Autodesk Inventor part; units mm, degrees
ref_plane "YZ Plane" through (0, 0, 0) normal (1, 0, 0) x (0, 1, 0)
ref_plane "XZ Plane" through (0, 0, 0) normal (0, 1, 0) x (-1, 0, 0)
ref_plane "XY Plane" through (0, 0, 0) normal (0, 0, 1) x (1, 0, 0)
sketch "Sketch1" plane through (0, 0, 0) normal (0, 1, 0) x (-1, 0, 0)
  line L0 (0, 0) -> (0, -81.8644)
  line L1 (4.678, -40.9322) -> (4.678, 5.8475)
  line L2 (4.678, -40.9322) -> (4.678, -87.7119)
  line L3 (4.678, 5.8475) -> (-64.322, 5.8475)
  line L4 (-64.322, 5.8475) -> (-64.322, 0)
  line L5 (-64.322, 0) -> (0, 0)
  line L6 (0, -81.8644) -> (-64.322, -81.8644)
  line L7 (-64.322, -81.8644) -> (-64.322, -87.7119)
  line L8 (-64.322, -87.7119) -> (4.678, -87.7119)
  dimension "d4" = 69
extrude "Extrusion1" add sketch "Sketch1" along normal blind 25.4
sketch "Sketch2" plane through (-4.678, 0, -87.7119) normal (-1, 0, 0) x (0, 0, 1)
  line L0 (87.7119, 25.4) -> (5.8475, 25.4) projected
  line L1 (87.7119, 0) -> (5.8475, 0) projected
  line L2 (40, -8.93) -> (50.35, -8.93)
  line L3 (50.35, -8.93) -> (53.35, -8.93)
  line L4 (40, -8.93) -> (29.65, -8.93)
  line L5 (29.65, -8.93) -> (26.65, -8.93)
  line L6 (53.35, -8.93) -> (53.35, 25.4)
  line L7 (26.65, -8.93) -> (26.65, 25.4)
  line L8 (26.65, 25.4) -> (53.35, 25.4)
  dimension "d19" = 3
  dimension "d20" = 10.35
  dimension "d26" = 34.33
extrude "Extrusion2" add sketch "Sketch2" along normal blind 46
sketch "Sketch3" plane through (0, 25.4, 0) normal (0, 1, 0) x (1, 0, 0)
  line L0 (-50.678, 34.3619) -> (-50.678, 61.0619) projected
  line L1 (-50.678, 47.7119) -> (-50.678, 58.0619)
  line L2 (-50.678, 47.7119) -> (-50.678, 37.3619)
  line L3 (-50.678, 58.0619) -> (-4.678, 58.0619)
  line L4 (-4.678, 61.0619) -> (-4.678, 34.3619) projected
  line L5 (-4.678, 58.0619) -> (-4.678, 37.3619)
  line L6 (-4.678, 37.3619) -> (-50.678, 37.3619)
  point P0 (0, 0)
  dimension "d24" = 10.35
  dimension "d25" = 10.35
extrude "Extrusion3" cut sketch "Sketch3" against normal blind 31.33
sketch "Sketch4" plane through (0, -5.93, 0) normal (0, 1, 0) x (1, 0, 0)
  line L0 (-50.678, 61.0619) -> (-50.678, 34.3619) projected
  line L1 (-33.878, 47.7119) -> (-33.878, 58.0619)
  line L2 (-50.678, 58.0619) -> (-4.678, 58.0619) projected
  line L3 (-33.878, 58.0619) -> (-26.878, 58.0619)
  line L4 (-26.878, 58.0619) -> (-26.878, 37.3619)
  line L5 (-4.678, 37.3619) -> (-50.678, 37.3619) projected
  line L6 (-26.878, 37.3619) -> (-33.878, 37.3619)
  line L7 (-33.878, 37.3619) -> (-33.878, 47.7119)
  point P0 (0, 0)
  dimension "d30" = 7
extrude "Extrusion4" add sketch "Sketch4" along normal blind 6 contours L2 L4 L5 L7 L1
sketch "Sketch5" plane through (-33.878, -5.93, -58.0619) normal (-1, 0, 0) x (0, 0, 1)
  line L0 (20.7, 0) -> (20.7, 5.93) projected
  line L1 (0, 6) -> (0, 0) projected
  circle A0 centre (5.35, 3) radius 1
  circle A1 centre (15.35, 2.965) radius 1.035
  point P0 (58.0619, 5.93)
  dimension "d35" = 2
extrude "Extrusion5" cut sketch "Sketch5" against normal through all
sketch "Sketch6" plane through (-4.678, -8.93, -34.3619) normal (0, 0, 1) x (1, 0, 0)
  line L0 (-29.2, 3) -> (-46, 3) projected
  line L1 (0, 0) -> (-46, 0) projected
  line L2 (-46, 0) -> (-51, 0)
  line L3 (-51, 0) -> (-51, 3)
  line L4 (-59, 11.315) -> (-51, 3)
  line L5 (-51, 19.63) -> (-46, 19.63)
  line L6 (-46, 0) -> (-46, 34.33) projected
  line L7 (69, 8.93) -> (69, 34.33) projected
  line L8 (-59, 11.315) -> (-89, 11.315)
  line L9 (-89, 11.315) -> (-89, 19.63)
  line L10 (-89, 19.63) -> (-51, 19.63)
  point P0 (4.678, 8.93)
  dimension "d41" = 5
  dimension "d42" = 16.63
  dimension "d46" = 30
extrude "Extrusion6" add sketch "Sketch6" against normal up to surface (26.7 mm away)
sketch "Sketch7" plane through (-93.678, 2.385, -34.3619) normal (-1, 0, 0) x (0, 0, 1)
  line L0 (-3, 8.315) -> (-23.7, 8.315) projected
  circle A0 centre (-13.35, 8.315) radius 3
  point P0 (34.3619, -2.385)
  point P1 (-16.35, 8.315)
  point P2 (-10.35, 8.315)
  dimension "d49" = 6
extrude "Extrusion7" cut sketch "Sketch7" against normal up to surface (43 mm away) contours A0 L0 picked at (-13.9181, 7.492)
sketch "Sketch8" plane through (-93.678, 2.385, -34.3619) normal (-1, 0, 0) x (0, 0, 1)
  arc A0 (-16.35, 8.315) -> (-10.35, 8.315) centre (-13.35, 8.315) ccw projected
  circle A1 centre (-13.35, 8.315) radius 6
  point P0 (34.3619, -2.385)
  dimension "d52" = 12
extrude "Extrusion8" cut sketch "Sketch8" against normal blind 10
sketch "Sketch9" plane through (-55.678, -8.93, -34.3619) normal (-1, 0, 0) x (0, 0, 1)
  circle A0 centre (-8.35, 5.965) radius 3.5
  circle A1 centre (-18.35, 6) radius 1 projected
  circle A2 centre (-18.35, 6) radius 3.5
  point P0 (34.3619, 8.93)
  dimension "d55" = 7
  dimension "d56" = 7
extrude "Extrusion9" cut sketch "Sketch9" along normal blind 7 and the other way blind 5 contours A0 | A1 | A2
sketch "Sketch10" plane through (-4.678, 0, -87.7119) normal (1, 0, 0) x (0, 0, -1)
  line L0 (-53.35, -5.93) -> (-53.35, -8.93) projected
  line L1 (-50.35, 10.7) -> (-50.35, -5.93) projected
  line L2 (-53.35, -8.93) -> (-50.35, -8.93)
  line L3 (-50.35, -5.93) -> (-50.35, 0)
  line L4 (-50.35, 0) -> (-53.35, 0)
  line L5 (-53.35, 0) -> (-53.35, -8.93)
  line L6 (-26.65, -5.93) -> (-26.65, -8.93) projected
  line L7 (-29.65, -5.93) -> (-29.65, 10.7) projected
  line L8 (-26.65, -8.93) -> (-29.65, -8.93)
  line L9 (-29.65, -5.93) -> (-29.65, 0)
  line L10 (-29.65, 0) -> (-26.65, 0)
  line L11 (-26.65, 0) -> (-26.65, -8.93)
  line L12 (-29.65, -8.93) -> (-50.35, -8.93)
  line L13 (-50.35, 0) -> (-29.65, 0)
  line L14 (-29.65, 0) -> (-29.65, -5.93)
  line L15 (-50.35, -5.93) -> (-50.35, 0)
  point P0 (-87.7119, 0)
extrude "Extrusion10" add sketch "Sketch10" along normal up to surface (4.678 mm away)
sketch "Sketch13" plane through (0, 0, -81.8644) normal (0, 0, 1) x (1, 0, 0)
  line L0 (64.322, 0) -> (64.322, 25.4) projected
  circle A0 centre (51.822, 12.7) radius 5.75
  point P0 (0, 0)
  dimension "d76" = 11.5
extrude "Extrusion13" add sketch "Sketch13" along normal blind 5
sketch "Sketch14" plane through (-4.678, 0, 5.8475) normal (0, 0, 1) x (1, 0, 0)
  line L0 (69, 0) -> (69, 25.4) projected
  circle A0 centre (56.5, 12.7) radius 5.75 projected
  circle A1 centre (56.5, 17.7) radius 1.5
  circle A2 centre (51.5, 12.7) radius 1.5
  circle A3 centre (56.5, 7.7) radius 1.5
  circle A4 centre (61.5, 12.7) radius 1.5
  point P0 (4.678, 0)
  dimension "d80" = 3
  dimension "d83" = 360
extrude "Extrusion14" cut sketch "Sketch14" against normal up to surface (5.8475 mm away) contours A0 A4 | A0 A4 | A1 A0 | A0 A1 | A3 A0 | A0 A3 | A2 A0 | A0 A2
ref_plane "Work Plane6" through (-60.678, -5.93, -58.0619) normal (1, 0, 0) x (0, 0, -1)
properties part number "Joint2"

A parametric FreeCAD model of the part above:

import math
import FreeCAD as App
import Part
import Sketcher
Q = App.Units.Quantity


def add_polygon(sketch, points):
    """Adds a closed chain of lines whose ends are joined by coincident constraints."""
    first, n = sketch.GeometryCount, len(points)
    for a, b in zip(points, points[1:] + points[:1]):
        sketch.addGeometry(Part.LineSegment(App.Vector(*a, 0), App.Vector(*b, 0)), False)
    for i in range(n):
        sketch.addConstraint(Sketcher.Constraint("Coincident", first + i, 2, first + (i + 1) % n, 1))

doc = App.newDocument("Part")
params = doc.addObject("Spreadsheet::Sheet", "Params")
for row, (alias, value) in enumerate([
    ("sketch1_width", "69 mm"),
    ("pad1_length", "25.4 mm"),
    ("sketch2_width", "34.33 mm"),
    ("sketch2_height", "26.7 mm"),
    ("pad2_length", "46 mm"),
    ("sketch3_width", "46 mm"),
    ("sketch3_height", "20.7 mm"),
    ("pocket1_length", "31.33 mm"),
    ("sketch4_width", "7 mm"),
    ("sketch4_height", "20.7 mm"),
    ("pad3_length", "6 mm"),
    ("sketch5_diameter", "2 mm"),
    ("sketch5_diameter2", "2.07 mm"),
    ("sketch6_width", "5 mm"),
    ("sketch6_width2", "30 mm"),
    ("sketch6_width3", "43 mm"),
    ("sketch6_height", "3 mm"),
    ("pad4_length", "26.7 mm"),
    ("sketch7_radius", "3 mm"),
    ("pocket3_length", "43 mm"),
    ("sketch8_diameter", "12 mm"),
    ("pocket4_length", "10 mm"),
    ("sketch9_diameter", "7 mm"),
    ("pocket5_length", "7 mm"),
    ("pocket5_length2", "5 mm"),
    ("sketch10_height", "26.7 mm"),
    ("sketch10_width", "8.93 mm"),
    ("pad5_length", "4.678 mm"),
    ("sketch11_diameter", "11.5 mm"),
    ("pad6_length", "5 mm"),
    ("sketch12_diameter", "3 mm"),
    ("pocket6_length", "5.8475 mm"),
], start=1):
    params.set(f"A{row}", alias)
    params.set(f"B{row}", "=" + value)
    params.setAlias(f"B{row}", alias)

body = doc.addObject("PartDesign::Body", "Body")

# Sketch on XZ plane
sketch1 = body.newObject("Sketcher::SketchObject", "Sketch")
sketch1.AttachmentSupport = (doc.getObject("XZ_Plane"), [""])
sketch1.MapMode = "FlatFace"
add_polygon(sketch1, [(64.322, 0), (0, 0), (0, -81.8644), (64.322, -81.8644), (64.322, -87.7119), (-4.678, -87.7119), (-4.678, 5.8475), (64.322, 5.8475)])  # lines 0-7
sketch1.addConstraint(Sketcher.Constraint("Horizontal", 0))
sketch1.addConstraint(Sketcher.Constraint("Vertical", 1))
sketch1.addConstraint(Sketcher.Constraint("Horizontal", 2))
sketch1.addConstraint(Sketcher.Constraint("Vertical", 3))
sketch1.addConstraint(Sketcher.Constraint("Horizontal", 4))
sketch1.addConstraint(Sketcher.Constraint("Vertical", 5))
sketch1.addConstraint(Sketcher.Constraint("Horizontal", 6))
sketch1.addConstraint(Sketcher.Constraint("Vertical", 7))
sketch1.addConstraint(Sketcher.Constraint("Coincident", 0, 2, -1, 1))
sketch1.addConstraint(Sketcher.Constraint("Vertical", 3, 2, 6, 2))
sketch1.addConstraint(Sketcher.Constraint("Equal", 3, 7))
sketch1.addConstraint(Sketcher.Constraint("DistanceX", 4, 2, 4, 1, Q("69 mm")))
sketch1.addConstraint(Sketcher.Constraint("DistanceX", 0, 2, 0, 1, Q("64.322 mm")))
sketch1.addConstraint(Sketcher.Constraint("DistanceY", 1, 2, 1, 1, Q("81.8644 mm")))
sketch1.addConstraint(Sketcher.Constraint("DistanceY", 3, 2, 3, 1, Q("5.8475 mm")))
sketch1.setExpression("Constraints[19]", "Params.sketch1_width")
pad1 = body.newObject("PartDesign::Pad", "Pad")
pad1.Profile = sketch1
pad1.setExpression("Length", "Params.pad1_length")
pad1.Reversed = True

# Sketch on YZ plane
sketch2 = body.newObject("Sketcher::SketchObject", "Sketch001")
sketch2.AttachmentSupport = (doc.getObject("YZ_Plane"), [""])
sketch2.MapMode = "FlatFace"
sketch2.AttachmentOffset = App.Placement(App.Vector(0, 0, -4.678), App.Rotation())
add_polygon(sketch2, [(25.4, -34.3619), (25.4, -61.0619), (-8.93, -61.0619), (-8.93, -34.3619)])  # lines 0-3
sketch2.addConstraint(Sketcher.Constraint("Vertical", 0))
sketch2.addConstraint(Sketcher.Constraint("Horizontal", 1))
sketch2.addConstraint(Sketcher.Constraint("Vertical", 2))
sketch2.addConstraint(Sketcher.Constraint("Horizontal", 3))
sketch2.addConstraint(Sketcher.Constraint("DistanceX", 1, 2, 1, 1, Q("34.33 mm")))
sketch2.addConstraint(Sketcher.Constraint("DistanceY", 0, 2, 0, 1, Q("26.7 mm")))
sketch2.addConstraint(Sketcher.Constraint("DistanceX", -1, 1, 0, 2, Q("25.4 mm")))
sketch2.addConstraint(Sketcher.Constraint("DistanceY", 0, 2, -1, 1, Q("61.062 mm")))
sketch2.setExpression("Constraints[8]", "Params.sketch2_width")
sketch2.setExpression("Constraints[9]", "Params.sketch2_height")
pad2 = body.newObject("PartDesign::Pad", "Pad001")
pad2.Profile = sketch2
pad2.setExpression("Length", "Params.pad2_length")
pad2.Reversed = True

# Sketch on XZ plane
sketch3 = body.newObject("Sketcher::SketchObject", "Sketch002")
sketch3.AttachmentSupport = (doc.getObject("XZ_Plane"), [""])
sketch3.MapMode = "FlatFace"
sketch3.AttachmentOffset = App.Placement(App.Vector(0, 0, -25.4), App.Rotation())
add_polygon(sketch3, [(-50.678, -58.0619), (-50.678, -37.3619), (-4.678, -37.3619), (-4.678, -58.0619)])  # lines 0-3
sketch3.addConstraint(Sketcher.Constraint("Vertical", 0))
sketch3.addConstraint(Sketcher.Constraint("Horizontal", 1))
sketch3.addConstraint(Sketcher.Constraint("Vertical", 2))
sketch3.addConstraint(Sketcher.Constraint("Horizontal", 3))
sketch3.addConstraint(Sketcher.Constraint("DistanceX", 1, 1, 1, 2, Q("46 mm")))
sketch3.addConstraint(Sketcher.Constraint("DistanceY", 0, 1, 0, 2, Q("20.7 mm")))
sketch3.addConstraint(Sketcher.Constraint("DistanceX", 0, 2, -1, 1, Q("50.678 mm")))
sketch3.addConstraint(Sketcher.Constraint("DistanceY", 0, 2, -1, 1, Q("37.362 mm")))
sketch3.setExpression("Constraints[8]", "Params.sketch3_width")
sketch3.setExpression("Constraints[9]", "Params.sketch3_height")
pocket1 = body.newObject("PartDesign::Pocket", "Pocket")
pocket1.Profile = sketch3
pocket1.setExpression("Length", "Params.pocket1_length")
pocket1.Reversed = True

# Sketch on XZ plane
sketch4 = body.newObject("Sketcher::SketchObject", "Sketch003")
sketch4.AttachmentSupport = (doc.getObject("XZ_Plane"), [""])
sketch4.MapMode = "FlatFace"
sketch4.AttachmentOffset = App.Placement(App.Vector(0, 0, 5.93), App.Rotation())
add_polygon(sketch4, [(-26.878, -58.0619), (-33.878, -58.0619), (-33.878, -37.3619), (-26.878, -37.3619)])  # lines 0-3
sketch4.addConstraint(Sketcher.Constraint("Horizontal", 0))
sketch4.addConstraint(Sketcher.Constraint("Vertical", 1))
sketch4.addConstraint(Sketcher.Constraint("Horizontal", 2))
sketch4.addConstraint(Sketcher.Constraint("Vertical", 3))
sketch4.addConstraint(Sketcher.Constraint("DistanceX", 0, 2, 0, 1, Q("7 mm")))
sketch4.addConstraint(Sketcher.Constraint("DistanceY", 1, 1, 1, 2, Q("20.7 mm")))
sketch4.addConstraint(Sketcher.Constraint("DistanceX", 0, 2, -1, 1, Q("33.878 mm")))
sketch4.addConstraint(Sketcher.Constraint("DistanceY", 0, 2, -1, 1, Q("58.062 mm")))
sketch4.setExpression("Constraints[8]", "Params.sketch4_width")
sketch4.setExpression("Constraints[9]", "Params.sketch4_height")
pad3 = body.newObject("PartDesign::Pad", "Pad002")
pad3.Profile = sketch4
pad3.setExpression("Length", "Params.pad3_length")
pad3.Reversed = True

# Sketch on YZ plane
sketch5 = body.newObject("Sketcher::SketchObject", "Sketch004")
sketch5.AttachmentSupport = (doc.getObject("YZ_Plane"), [""])
sketch5.MapMode = "FlatFace"
sketch5.AttachmentOffset = App.Placement(App.Vector(0, 0, -33.878), App.Rotation())
sketch5.addGeometry(Part.Circle(App.Vector(-2.93, -52.7119, 0), App.Vector(0, 0, 1), 1), False)
sketch5.addGeometry(Part.Circle(App.Vector(-2.965, -42.7119, 0), App.Vector(0, 0, 1), 1.035), False)
sketch5.addConstraint(Sketcher.Constraint("Diameter", 0, Q("2 mm")))
sketch5.addConstraint(Sketcher.Constraint("Diameter", 1, Q("2.07 mm")))
sketch5.addConstraint(Sketcher.Constraint("DistanceY", 0, 3, 1, 3, Q("10 mm")))
sketch5.addConstraint(Sketcher.Constraint("DistanceX", 0, 3, -1, 1, Q("2.93 mm")))
sketch5.addConstraint(Sketcher.Constraint("DistanceY", 0, 3, -1, 1, Q("52.712 mm")))
sketch5.addConstraint(Sketcher.Constraint("DistanceX", 1, 3, -1, 1, Q("2.965 mm")))
sketch5.setExpression("Constraints[0]", "Params.sketch5_diameter")
sketch5.setExpression("Constraints[1]", "Params.sketch5_diameter2")
pocket2 = body.newObject("PartDesign::Pocket", "Pocket001")
pocket2.Profile = sketch5
pocket2.Type = "ThroughAll"
pocket2.Reversed = True

# Sketch on XY plane
sketch6 = body.newObject("Sketcher::SketchObject", "Sketch005")
sketch6.AttachmentSupport = (doc.getObject("XY_Plane"), [""])
sketch6.MapMode = "FlatFace"
sketch6.AttachmentOffset = App.Placement(App.Vector(0, 0, -34.3619), App.Rotation())
add_polygon(sketch6, [(-55.678, -8.93), (-50.678, -8.93), (-50.678, 10.7), (-93.678, 10.7), (-93.678, 2.385), (-63.678, 2.385), (-55.678, -5.93)])  # lines 0-6
sketch6.addConstraint(Sketcher.Constraint("Horizontal", 0))
sketch6.addConstraint(Sketcher.Constraint("Vertical", 1))
sketch6.addConstraint(Sketcher.Constraint("Horizontal", 2))
sketch6.addConstraint(Sketcher.Constraint("Vertical", 3))
sketch6.addConstraint(Sketcher.Constraint("Horizontal", 4))
sketch6.addConstraint(Sketcher.Constraint("Vertical", 6))
sketch6.addConstraint(Sketcher.Constraint("DistanceX", 0, 1, 0, 2, Q("5 mm")))
sketch6.addConstraint(Sketcher.Constraint("DistanceX", 4, 1, 4, 2, Q("30 mm")))
sketch6.addConstraint(Sketcher.Constraint("DistanceX", 2, 2, 2, 1, Q("43 mm")))
sketch6.addConstraint(Sketcher.Constraint("DistanceY", 6, 2, 6, 1, Q("3 mm")))
sketch6.addConstraint(Sketcher.Constraint("DistanceY", 5, 2, 1, 2, Q("16.63 mm")))
sketch6.addConstraint(Sketcher.Constraint("DistanceY", -1, 1, 1, 2, Q("10.7 mm")))
sketch6.addConstraint(Sketcher.Constraint("DistanceY", 3, 2, 3, 1, Q("8.315 mm")))
sketch6.addConstraint(Sketcher.Constraint("DistanceX", 0, 2, -1, 1, Q("50.678 mm")))
sketch6.setExpression("Constraints[13]", "Params.sketch6_width")
sketch6.setExpression("Constraints[14]", "Params.sketch6_width2")
sketch6.setExpression("Constraints[15]", "Params.sketch6_width3")
sketch6.setExpression("Constraints[16]", "Params.sketch6_height")
pad4 = body.newObject("PartDesign::Pad", "Pad003")
pad4.Profile = sketch6
pad4.setExpression("Length", "Params.pad4_length")
pad4.Reversed = True

# Sketch on YZ plane
sketch7 = body.newObject("Sketcher::SketchObject", "Sketch006")
sketch7.AttachmentSupport = (doc.getObject("YZ_Plane"), [""])
sketch7.MapMode = "FlatFace"
sketch7.AttachmentOffset = App.Placement(App.Vector(0, 0, -93.678), App.Rotation())
sketch7.addGeometry(Part.ArcOfCircle(Part.Circle(App.Vector(10.7, -47.7119, 0), App.Vector(0, 0, 1), 3), math.radians(90), math.radians(270)), False)
sketch7.addGeometry(Part.LineSegment(App.Vector(10.7, -44.7119, 0), App.Vector(10.7, -50.7119, 0)), False)
sketch7.addConstraint(Sketcher.Constraint("Coincident", 0, 1, 1, 1))
sketch7.addConstraint(Sketcher.Constraint("Coincident", 1, 2, 0, 2))
sketch7.addConstraint(Sketcher.Constraint("Vertical", 1))
sketch7.addConstraint(Sketcher.Constraint("Radius", 0, Q("3 mm")))
sketch7.addConstraint(Sketcher.Constraint("DistanceX", -1, 1, 0, 3, Q("10.7 mm")))
sketch7.addConstraint(Sketcher.Constraint("DistanceX", -1, 1, 0, 1, Q("10.7 mm")))
sketch7.addConstraint(Sketcher.Constraint("DistanceY", 0, 3, -1, 1, Q("47.712 mm")))
sketch7.setExpression("Constraints[3]", "Params.sketch7_radius")
pocket3 = body.newObject("PartDesign::Pocket", "Pocket002")
pocket3.Profile = sketch7
pocket3.setExpression("Length", "Params.pocket3_length")
pocket3.Reversed = True

# Sketch on YZ plane
sketch8 = body.newObject("Sketcher::SketchObject", "Sketch007")
sketch8.AttachmentSupport = (doc.getObject("YZ_Plane"), [""])
sketch8.MapMode = "FlatFace"
sketch8.AttachmentOffset = App.Placement(App.Vector(0, 0, -93.678), App.Rotation())
sketch8.addGeometry(Part.Circle(App.Vector(10.7, -47.7119, 0), App.Vector(0, 0, 1), 6), False)
sketch8.addConstraint(Sketcher.Constraint("Diameter", 0, Q("12 mm")))
sketch8.addConstraint(Sketcher.Constraint("DistanceX", -1, 1, 0, 3, Q("10.7 mm")))
sketch8.addConstraint(Sketcher.Constraint("DistanceY", 0, 3, -1, 1, Q("47.712 mm")))
sketch8.setExpression("Constraints[0]", "Params.sketch8_diameter")
pocket4 = body.newObject("PartDesign::Pocket", "Pocket003")
pocket4.Profile = sketch8
pocket4.setExpression("Length", "Params.pocket4_length")
pocket4.Reversed = True

# Sketch on YZ plane
sketch9 = body.newObject("Sketcher::SketchObject", "Sketch008")
sketch9.AttachmentSupport = (doc.getObject("YZ_Plane"), [""])
sketch9.MapMode = "FlatFace"
sketch9.AttachmentOffset = App.Placement(App.Vector(0, 0, -55.678), App.Rotation())
sketch9.addGeometry(Part.Circle(App.Vector(-2.965, -42.7119, 0), App.Vector(0, 0, 1), 3.5), False)
sketch9.addGeometry(Part.Circle(App.Vector(-2.93, -52.7119, 0), App.Vector(0, 0, 1), 3.5), False)
sketch9.addConstraint(Sketcher.Constraint("Equal", 0, 1))
sketch9.addConstraint(Sketcher.Constraint("Diameter", 0, Q("7 mm")))
sketch9.addConstraint(Sketcher.Constraint("DistanceY", 1, 3, 0, 3, Q("10 mm")))
sketch9.addConstraint(Sketcher.Constraint("DistanceX", 1, 3, -1, 1, Q("2.93 mm")))
sketch9.addConstraint(Sketcher.Constraint("DistanceX", 0, 3, -1, 1, Q("2.965 mm")))
sketch9.addConstraint(Sketcher.Constraint("DistanceY", 0, 3, -1, 1, Q("42.712 mm")))
sketch9.setExpression("Constraints[1]", "Params.sketch9_diameter")
pocket5 = body.newObject("PartDesign::Pocket", "Pocket004")
pocket5.Profile = sketch9
pocket5.Type = "TwoLengths"
pocket5.setExpression("Length", "Params.pocket5_length")
pocket5.setExpression("Length2", "Params.pocket5_length2")

# Sketch on YZ plane
sketch10 = body.newObject("Sketcher::SketchObject", "Sketch009")
sketch10.AttachmentSupport = (doc.getObject("YZ_Plane"), [""])
sketch10.MapMode = "FlatFace"
sketch10.AttachmentOffset = App.Placement(App.Vector(0, 0, -4.678), App.Rotation())
add_polygon(sketch10, [(0, -34.3619), (-8.93, -34.3619), (-8.93, -61.0619), (0, -61.0619)])  # lines 0-3
sketch10.addConstraint(Sketcher.Constraint("Horizontal", 0))
sketch10.addConstraint(Sketcher.Constraint("Vertical", 1))
sketch10.addConstraint(Sketcher.Constraint("Horizontal", 2))
sketch10.addConstraint(Sketcher.Constraint("Vertical", 3))
sketch10.addConstraint(Sketcher.Constraint("PointOnObject", 2, 2, -2))
sketch10.addConstraint(Sketcher.Constraint("DistanceY", 1, 2, 1, 1, Q("26.7 mm")))
sketch10.addConstraint(Sketcher.Constraint("DistanceX", 0, 2, 0, 1, Q("8.93 mm")))
sketch10.addConstraint(Sketcher.Constraint("DistanceY", 0, 2, -1, 1, Q("34.362 mm")))
sketch10.setExpression("Constraints[9]", "Params.sketch10_height")
sketch10.setExpression("Constraints[10]", "Params.sketch10_width")
pad5 = body.newObject("PartDesign::Pad", "Pad004")
pad5.Profile = sketch10
pad5.setExpression("Length", "Params.pad5_length")

# Sketch on XY plane
sketch11 = body.newObject("Sketcher::SketchObject", "Sketch010")
sketch11.AttachmentSupport = (doc.getObject("XY_Plane"), [""])
sketch11.MapMode = "FlatFace"
sketch11.AttachmentOffset = App.Placement(App.Vector(0, 0, -81.8644), App.Rotation())
sketch11.addGeometry(Part.Circle(App.Vector(51.822, 12.7, 0), App.Vector(0, 0, 1), 5.75), False)
sketch11.addConstraint(Sketcher.Constraint("Diameter", 0, Q("11.5 mm")))
sketch11.addConstraint(Sketcher.Constraint("DistanceY", -1, 1, 0, 3, Q("12.7 mm")))
sketch11.addConstraint(Sketcher.Constraint("DistanceX", -1, 1, 0, 3, Q("51.822 mm")))
sketch11.setExpression("Constraints[0]", "Params.sketch11_diameter")
pad6 = body.newObject("PartDesign::Pad", "Pad005")
pad6.Profile = sketch11
pad6.setExpression("Length", "Params.pad6_length")

# Sketch on XY plane
sketch12 = body.newObject("Sketcher::SketchObject", "Sketch011")
sketch12.AttachmentSupport = (doc.getObject("XY_Plane"), [""])
sketch12.MapMode = "FlatFace"
sketch12.AttachmentOffset = App.Placement(App.Vector(0, 0, 5.8475), App.Rotation())
sketch12.addGeometry(Part.Circle(App.Vector(56.822, 12.7, 0), App.Vector(0, 0, 1), 1.5), False)
sketch12.addGeometry(Part.Circle(App.Vector(51.822, 17.7, 0), App.Vector(0, 0, 1), 1.5), False)
sketch12.addGeometry(Part.Circle(App.Vector(51.822, 7.7, 0), App.Vector(0, 0, 1), 1.5), False)
sketch12.addGeometry(Part.Circle(App.Vector(46.822, 12.7, 0), App.Vector(0, 0, 1), 1.5), False)
sketch12.addConstraint(Sketcher.Constraint("Equal", 0, 1))
sketch12.addConstraint(Sketcher.Constraint("Equal", 1, 2))
sketch12.addConstraint(Sketcher.Constraint("Equal", 2, 3))
sketch12.addConstraint(Sketcher.Constraint("Horizontal", 0, 3, 3, 3))
sketch12.addConstraint(Sketcher.Constraint("Vertical", 1, 3, 2, 3))
sketch12.addConstraint(Sketcher.Constraint("Diameter", 0, Q("3 mm")))
sketch12.addConstraint(Sketcher.Constraint("DistanceX", 1, 3, 0, 3, Q("5 mm")))
sketch12.addConstraint(Sketcher.Constraint("DistanceY", 0, 3, 1, 3, Q("5 mm")))
sketch12.addConstraint(Sketcher.Constraint("DistanceY", 2, 3, 0, 3, Q("5 mm")))
sketch12.addConstraint(Sketcher.Constraint("DistanceX", 3, 3, 2, 3, Q("5 mm")))
sketch12.addConstraint(Sketcher.Constraint("DistanceY", -1, 1, 0, 3, Q("12.7 mm")))
sketch12.addConstraint(Sketcher.Constraint("DistanceX", -1, 1, 0, 3, Q("56.822 mm")))
sketch12.setExpression("Constraints[5]", "Params.sketch12_diameter")
pocket6 = body.newObject("PartDesign::Pocket", "Pocket005")
pocket6.Profile = sketch12
pocket6.setExpression("Length", "Params.pocket6_length")

doc.recompute()
